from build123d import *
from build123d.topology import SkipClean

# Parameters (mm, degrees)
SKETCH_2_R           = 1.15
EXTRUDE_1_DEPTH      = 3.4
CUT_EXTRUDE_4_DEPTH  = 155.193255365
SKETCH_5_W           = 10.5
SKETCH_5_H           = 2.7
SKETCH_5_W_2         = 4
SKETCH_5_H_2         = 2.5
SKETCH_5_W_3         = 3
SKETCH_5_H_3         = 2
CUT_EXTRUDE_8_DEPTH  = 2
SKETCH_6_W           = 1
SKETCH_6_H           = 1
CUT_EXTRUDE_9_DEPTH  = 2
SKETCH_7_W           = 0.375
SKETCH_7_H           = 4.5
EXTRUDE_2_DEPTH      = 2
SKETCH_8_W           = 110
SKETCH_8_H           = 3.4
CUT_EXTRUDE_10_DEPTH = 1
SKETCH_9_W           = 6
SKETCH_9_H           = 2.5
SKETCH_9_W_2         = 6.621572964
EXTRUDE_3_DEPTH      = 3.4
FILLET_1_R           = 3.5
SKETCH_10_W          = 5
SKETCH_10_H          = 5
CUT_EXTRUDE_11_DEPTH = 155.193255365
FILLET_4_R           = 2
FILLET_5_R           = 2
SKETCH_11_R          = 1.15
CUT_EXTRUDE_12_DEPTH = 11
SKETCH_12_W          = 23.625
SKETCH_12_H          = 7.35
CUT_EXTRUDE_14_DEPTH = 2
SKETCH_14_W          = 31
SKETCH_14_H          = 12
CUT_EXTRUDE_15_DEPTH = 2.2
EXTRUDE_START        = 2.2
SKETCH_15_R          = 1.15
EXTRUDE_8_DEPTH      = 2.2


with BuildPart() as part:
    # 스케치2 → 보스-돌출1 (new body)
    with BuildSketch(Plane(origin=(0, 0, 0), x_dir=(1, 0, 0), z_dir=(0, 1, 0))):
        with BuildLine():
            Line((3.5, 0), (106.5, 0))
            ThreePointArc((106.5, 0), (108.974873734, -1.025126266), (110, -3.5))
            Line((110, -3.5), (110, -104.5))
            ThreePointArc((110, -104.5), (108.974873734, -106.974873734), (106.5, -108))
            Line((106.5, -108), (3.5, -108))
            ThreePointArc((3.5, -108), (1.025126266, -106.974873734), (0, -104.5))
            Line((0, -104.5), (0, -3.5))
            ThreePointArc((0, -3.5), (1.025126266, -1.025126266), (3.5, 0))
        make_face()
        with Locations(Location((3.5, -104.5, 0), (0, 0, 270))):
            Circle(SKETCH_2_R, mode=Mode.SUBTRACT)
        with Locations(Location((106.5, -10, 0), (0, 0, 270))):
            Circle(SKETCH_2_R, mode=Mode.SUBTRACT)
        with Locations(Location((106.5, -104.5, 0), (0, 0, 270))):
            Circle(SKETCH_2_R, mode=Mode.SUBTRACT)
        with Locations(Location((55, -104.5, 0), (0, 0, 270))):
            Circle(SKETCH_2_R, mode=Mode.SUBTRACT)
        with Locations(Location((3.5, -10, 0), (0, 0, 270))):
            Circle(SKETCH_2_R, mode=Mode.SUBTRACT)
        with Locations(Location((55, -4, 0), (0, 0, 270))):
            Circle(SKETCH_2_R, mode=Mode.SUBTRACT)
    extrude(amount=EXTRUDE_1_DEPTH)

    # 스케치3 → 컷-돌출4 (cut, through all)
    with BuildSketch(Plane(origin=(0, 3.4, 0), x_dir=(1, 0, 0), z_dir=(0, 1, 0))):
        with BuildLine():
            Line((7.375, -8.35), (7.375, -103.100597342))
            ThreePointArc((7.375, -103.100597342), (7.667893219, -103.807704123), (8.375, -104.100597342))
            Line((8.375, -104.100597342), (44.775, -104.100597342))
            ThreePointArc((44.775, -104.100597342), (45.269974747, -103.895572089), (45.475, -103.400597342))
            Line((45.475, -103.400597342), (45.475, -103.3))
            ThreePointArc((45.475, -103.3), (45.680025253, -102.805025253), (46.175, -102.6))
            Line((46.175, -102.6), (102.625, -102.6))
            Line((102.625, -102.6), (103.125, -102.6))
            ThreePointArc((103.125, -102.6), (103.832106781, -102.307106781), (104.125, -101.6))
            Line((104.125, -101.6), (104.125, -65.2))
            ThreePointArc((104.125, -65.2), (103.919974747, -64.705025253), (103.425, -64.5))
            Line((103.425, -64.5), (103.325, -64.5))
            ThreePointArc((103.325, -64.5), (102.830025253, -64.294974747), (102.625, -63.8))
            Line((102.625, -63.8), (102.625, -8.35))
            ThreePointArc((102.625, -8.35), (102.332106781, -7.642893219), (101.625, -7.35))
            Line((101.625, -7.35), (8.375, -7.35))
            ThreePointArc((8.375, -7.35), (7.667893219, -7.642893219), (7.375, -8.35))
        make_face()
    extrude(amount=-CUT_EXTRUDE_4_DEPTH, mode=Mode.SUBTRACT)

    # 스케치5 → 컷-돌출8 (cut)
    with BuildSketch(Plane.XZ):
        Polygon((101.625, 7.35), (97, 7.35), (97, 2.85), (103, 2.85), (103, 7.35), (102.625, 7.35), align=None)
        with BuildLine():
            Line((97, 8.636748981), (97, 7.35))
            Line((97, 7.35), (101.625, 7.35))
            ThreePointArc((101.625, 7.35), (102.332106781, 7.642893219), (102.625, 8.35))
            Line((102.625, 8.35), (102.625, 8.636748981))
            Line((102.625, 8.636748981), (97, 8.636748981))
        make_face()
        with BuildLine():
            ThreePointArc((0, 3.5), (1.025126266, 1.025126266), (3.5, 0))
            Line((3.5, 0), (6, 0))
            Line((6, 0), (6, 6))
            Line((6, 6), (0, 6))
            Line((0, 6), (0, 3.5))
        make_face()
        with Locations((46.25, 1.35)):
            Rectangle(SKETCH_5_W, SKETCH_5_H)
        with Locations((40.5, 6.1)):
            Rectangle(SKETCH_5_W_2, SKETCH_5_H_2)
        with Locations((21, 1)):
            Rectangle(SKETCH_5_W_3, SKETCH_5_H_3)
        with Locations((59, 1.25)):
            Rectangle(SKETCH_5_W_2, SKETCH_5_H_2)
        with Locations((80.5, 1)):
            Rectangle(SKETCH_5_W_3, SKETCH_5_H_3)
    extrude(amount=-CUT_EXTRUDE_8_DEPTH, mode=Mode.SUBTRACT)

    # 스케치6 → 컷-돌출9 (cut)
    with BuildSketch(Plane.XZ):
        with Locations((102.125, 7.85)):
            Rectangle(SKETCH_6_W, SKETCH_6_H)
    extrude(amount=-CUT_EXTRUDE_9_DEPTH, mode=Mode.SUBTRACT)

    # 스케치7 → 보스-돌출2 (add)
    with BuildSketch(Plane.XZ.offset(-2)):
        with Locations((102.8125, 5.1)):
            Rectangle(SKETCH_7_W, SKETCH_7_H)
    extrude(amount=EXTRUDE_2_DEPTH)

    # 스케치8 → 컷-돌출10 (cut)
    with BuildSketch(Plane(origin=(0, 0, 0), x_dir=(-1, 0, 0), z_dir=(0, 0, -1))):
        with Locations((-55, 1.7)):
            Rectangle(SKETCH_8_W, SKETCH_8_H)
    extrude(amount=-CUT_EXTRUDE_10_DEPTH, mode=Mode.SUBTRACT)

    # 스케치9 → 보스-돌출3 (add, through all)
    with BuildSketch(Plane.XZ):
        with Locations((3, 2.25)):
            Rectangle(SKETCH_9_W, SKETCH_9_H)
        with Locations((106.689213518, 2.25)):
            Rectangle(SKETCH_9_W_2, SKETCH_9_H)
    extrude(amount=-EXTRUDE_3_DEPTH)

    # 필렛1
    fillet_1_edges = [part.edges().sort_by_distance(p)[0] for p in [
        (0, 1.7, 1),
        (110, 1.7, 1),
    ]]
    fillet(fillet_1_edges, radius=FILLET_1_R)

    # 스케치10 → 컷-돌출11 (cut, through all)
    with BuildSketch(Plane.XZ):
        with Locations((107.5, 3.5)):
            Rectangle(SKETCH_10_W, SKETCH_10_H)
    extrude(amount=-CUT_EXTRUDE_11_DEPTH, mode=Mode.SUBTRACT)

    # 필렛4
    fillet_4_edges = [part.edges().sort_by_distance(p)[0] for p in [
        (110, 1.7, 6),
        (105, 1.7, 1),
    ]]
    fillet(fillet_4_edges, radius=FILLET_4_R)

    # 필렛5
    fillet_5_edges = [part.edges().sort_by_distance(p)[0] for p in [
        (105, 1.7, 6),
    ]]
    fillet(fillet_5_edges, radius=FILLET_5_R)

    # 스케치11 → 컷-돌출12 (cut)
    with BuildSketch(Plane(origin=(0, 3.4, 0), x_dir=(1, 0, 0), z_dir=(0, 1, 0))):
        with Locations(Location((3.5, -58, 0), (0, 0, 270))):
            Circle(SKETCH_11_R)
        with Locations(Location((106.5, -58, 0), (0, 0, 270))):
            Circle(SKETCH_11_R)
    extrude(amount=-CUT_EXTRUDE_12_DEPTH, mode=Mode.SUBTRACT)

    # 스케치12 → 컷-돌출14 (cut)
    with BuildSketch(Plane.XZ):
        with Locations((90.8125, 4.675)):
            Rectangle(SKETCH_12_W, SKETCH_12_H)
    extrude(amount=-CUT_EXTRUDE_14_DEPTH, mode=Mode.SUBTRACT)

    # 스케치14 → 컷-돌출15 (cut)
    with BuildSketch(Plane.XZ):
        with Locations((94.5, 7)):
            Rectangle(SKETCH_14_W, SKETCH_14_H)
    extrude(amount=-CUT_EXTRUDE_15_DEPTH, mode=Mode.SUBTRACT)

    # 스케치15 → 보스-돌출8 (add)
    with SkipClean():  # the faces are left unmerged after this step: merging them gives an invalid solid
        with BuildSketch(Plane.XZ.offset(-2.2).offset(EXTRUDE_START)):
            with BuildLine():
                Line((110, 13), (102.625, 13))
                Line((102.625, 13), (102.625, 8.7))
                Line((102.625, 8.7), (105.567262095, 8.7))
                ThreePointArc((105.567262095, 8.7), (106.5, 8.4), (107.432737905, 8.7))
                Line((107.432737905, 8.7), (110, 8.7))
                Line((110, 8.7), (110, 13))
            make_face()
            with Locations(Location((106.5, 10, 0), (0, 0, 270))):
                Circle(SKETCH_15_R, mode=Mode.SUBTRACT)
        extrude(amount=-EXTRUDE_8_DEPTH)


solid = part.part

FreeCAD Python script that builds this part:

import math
import FreeCAD as App
import Part
import Sketcher

V = App.Vector
Q = App.Units.Quantity


def edges_at(feature, points):
    """Names of the edges that pass closest to the given points."""
    edges = feature.Shape.Edges
    near = lambda p: min(range(len(edges)), key=lambda i: edges[i].distToShape(Part.Vertex(*p))[0])
    return sorted({f"Edge{near(p) + 1}" for p in points})


def add_polygon(sketch, points):
    """Adds a closed chain of lines whose ends are joined by coincident constraints."""
    first, n = sketch.GeometryCount, len(points)
    for a, b in zip(points, points[1:] + points[:1]):
        sketch.addGeometry(Part.LineSegment(App.Vector(*a, 0), App.Vector(*b, 0)), False)
    for i in range(n):
        sketch.addConstraint(Sketcher.Constraint("Coincident", first + i, 2, first + (i + 1) % n, 1))

doc = App.newDocument("Part")
params = doc.addObject("Spreadsheet::Sheet", "Params")
for row, (alias, value) in enumerate([
    ("sketch1_diameter", "2.3 mm"),
    ("sketch1_radius", "3.5 mm"),
    ("sketch1_width", "103 mm"),
    ("sketch1_height", "101 mm"),
    ("pad1_length", "3.4 mm"),
    ("sketch2_radius", "1 mm"),
    ("sketch2_radius2", "0.7 mm"),
    ("sketch2_width", "36.4 mm"),
    ("sketch2_width2", "0.1 mm"),
    ("sketch2_width3", "56.95 mm"),
    ("sketch3_radius", "1 mm"),
    ("sketch3_radius2", "3.5 mm"),
    ("sketch3_width", "6 mm"),
    ("sketch3_width2", "4 mm"),
    ("sketch3_width3", "3 mm"),
    ("pocket2_length", "2 mm"),
    ("sketch4_width", "1 mm"),
    ("pocket3_length", "2 mm"),
    ("sketch5_height", "4.5 mm"),
    ("pad2_length", "2 mm"),
    ("sketch6_width", "110 mm"),
    ("sketch6_height", "3.4 mm"),
    ("pocket4_length", "1 mm"),
    ("sketch7_width", "6 mm"),
    ("sketch7_height", "2.5 mm"),
    ("pad3_length", "3.4 mm"),
    ("fillet_radius", "3.5 mm"),
    ("sketch8_width", "5 mm"),
    ("fillet2_radius", "2 mm"),
    ("fillet3_radius", "2 mm"),
    ("sketch9_diameter", "2.3 mm"),
    ("pocket6_length", "11 mm"),
    ("sketch10_height", "7.35 mm"),
    ("pocket7_length", "2 mm"),
    ("sketch11_width", "31 mm"),
    ("sketch11_height", "12 mm"),
    ("pocket8_length", "2.2 mm"),
    ("sketch12_diameter", "2.3 mm"),
    ("sketch12_radius", "1.6 mm"),
    ("sketch12_height", "4.3 mm"),
    ("pad4_length", "2.2 mm"),
], start=1):
    params.set(f"A{row}", alias)
    params.set(f"B{row}", "=" + value)
    params.setAlias(f"B{row}", alias)

body = doc.addObject("PartDesign::Body", "Body")

# Sketch on XZ plane
sketch1 = body.newObject("Sketcher::SketchObject", "Sketch")
sketch1.AttachmentSupport = (doc.getObject("XZ_Plane"), [""])
sketch1.MapMode = "FlatFace"
sketch1.addGeometry([
    Part.LineSegment(V(106.5, 0, 0), V(3.5, 0, 0)),  # 0
    Part.ArcOfCircle(Part.Circle(V(3.5, 3.5, 0), V(0, 0, 1), 3.5), math.radians(-180), math.radians(-90)),  # 1
    Part.LineSegment(V(0, 3.5, 0), V(0, 104.5, 0)),  # 2
    Part.ArcOfCircle(Part.Circle(V(3.5, 104.5, 0), V(0, 0, 1), 3.5), math.radians(90), math.radians(180)),  # 3
    Part.LineSegment(V(3.5, 108, 0), V(106.5, 108, 0)),  # 4
    Part.ArcOfCircle(Part.Circle(V(106.5, 104.5, 0), V(0, 0, 1), 3.5), math.radians(0), math.radians(90)),  # 5
    Part.LineSegment(V(110, 104.5, 0), V(110, 3.5, 0)),  # 6
    Part.ArcOfCircle(Part.Circle(V(106.5, 3.5, 0), V(0, 0, 1), 3.5), math.radians(-90), math.radians(0)),  # 7
    Part.Circle(V(106.5, 104.5, 0), V(0, 0, 1), 1.1),  # 8
    Part.Circle(V(55, 104.5, 0), V(0, 0, 1), 1.1),  # 9
    Part.Circle(V(3.5, 104.5, 0), V(0, 0, 1), 1.1),  # 10
    Part.Circle(V(106.5, 10, 0), V(0, 0, 1), 1.1),  # 11
    Part.Circle(V(55, 4, 0), V(0, 0, 1), 1.1),  # 12
    Part.Circle(V(3.5, 10, 0), V(0, 0, 1), 1.1),  # 13
], False)
sketch1.addConstraint([
    Sketcher.Constraint("Tangent", 0, 2, 1, 2),
    Sketcher.Constraint("Tangent", 1, 1, 2, 1),
    Sketcher.Constraint("Tangent", 2, 2, 3, 2),
    Sketcher.Constraint("Tangent", 3, 1, 4, 1),
    Sketcher.Constraint("Tangent", 4, 2, 5, 2),
    Sketcher.Constraint("Tangent", 5, 1, 6, 1),
    Sketcher.Constraint("Tangent", 6, 2, 7, 2),
    Sketcher.Constraint("Tangent", 7, 1, 0, 1),
    Sketcher.Constraint("Horizontal", 0),
    Sketcher.Constraint("Vertical", 2),
    Sketcher.Constraint("Horizontal", 4),
    Sketcher.Constraint("Vertical", 6),
    Sketcher.Constraint("Coincident", 8, 3, 5, 3),
    Sketcher.Constraint("Coincident", 10, 3, 3, 3),
    Sketcher.Constraint("Equal", 1, 3),
    Sketcher.Constraint("Equal", 3, 5),
    Sketcher.Constraint("Equal", 5, 7),
    Sketcher.Constraint("Equal", 8, 9),
    Sketcher.Constraint("Equal", 9, 10),
    Sketcher.Constraint("Equal", 10, 11),
    Sketcher.Constraint("Equal", 11, 12),
    Sketcher.Constraint("Equal", 12, 13),
    Sketcher.Constraint("PointOnObject", 0, 2, -1),
    Sketcher.Constraint("PointOnObject", 1, 1, -2),
    Sketcher.Constraint("Horizontal", 8, 3, 9, 3),
    Sketcher.Constraint("Horizontal", 11, 3, 13, 3),
    Sketcher.Constraint("Vertical", 8, 3, 11, 3),
    Sketcher.Constraint("Vertical", 9, 3, 12, 3),
    Sketcher.Constraint("Vertical", 10, 3, 13, 3),
    Sketcher.Constraint("Diameter", 8, Q("2.3 mm")),
    Sketcher.Constraint("Radius", 1, Q("3.5 mm")),
    Sketcher.Constraint("DistanceX", 0, 2, 0, 1, Q("103 mm")),
    Sketcher.Constraint("DistanceY", 2, 1, 2, 2, Q("101 mm")),
    Sketcher.Constraint("DistanceX", -1, 1, 9, 3, Q("55 mm")),
    Sketcher.Constraint("DistanceY", -1, 1, 11, 3, Q("10 mm")),
    Sketcher.Constraint("DistanceY", -1, 1, 12, 3, Q("4 mm")),
])
sketch1.setExpression("Constraints[29]", "Params.sketch1_diameter")
sketch1.setExpression("Constraints[30]", "Params.sketch1_radius")
sketch1.setExpression("Constraints[31]", "Params.sketch1_width")
sketch1.setExpression("Constraints[32]", "Params.sketch1_height")
pad1 = body.newObject("PartDesign::Pad", "Pad")
pad1.Profile = sketch1
pad1.setExpression("Length", "Params.pad1_length")
pad1.Reversed = True

# Sketch on XZ plane
sketch2 = body.newObject("Sketcher::SketchObject", "Sketch001")
sketch2.AttachmentSupport = (doc.getObject("XZ_Plane"), [""])
sketch2.MapMode = "FlatFace"
sketch2.AttachmentOffset = App.Placement(V(0, 0, -3.4), App.Rotation())
sketch2.addGeometry([
    Part.LineSegment(V(7.38, 8.35, 0), V(7.38, 103.1, 0)),  # 0
    Part.ArcOfCircle(Part.Circle(V(8.38, 103.1, 0), V(0, 0, 1), 1), math.radians(90), math.radians(180)),  # 1
    Part.LineSegment(V(8.38, 104.1, 0), V(44.77, 104.1, 0)),  # 2
    Part.ArcOfCircle(Part.Circle(V(44.78, 103.4, 0), V(0, 0, 1), 0.7), math.radians(0), math.radians(90)),  # 3
    Part.LineSegment(V(45.48, 103.4, 0), V(45.48, 103.3, 0)),  # 4
    Part.ArcOfCircle(Part.Circle(V(46.17, 103.3, 0), V(0, 0, 1), 0.7), math.radians(180), math.radians(270)),  # 5
    Part.LineSegment(V(46.17, 102.6, 0), V(103.12, 102.6, 0)),  # 6
    Part.ArcOfCircle(Part.Circle(V(103.12, 101.6, 0), V(0, 0, 1), 1), math.radians(0), math.radians(90)),  # 7
    Part.LineSegment(V(104.12, 101.6, 0), V(104.12, 65.2, 0)),  # 8
    Part.ArcOfCircle(Part.Circle(V(103.43, 65.2, 0), V(0, 0, 1), 0.7), math.radians(-90), math.radians(0)),  # 9
    Part.LineSegment(V(103.42, 64.5, 0), V(103.33, 64.5, 0)),  # 10
    Part.ArcOfCircle(Part.Circle(V(103.32, 63.8, 0), V(0, 0, 1), 0.7), math.radians(90), math.radians(180)),  # 11
    Part.LineSegment(V(102.62, 63.8, 0), V(102.62, 8.35, 0)),  # 12
    Part.ArcOfCircle(Part.Circle(V(101.62, 8.35, 0), V(0, 0, 1), 1), math.radians(-90), math.radians(0)),  # 13
    Part.LineSegment(V(101.62, 7.35, 0), V(8.38, 7.35, 0)),  # 14
    Part.ArcOfCircle(Part.Circle(V(8.38, 8.35, 0), V(0, 0, 1), 1), math.radians(-180), math.radians(-90)),  # 15
], False)
sketch2.addConstraint([
    Sketcher.Constraint("Tangent", 0, 2, 1, 2),
    Sketcher.Constraint("Tangent", 1, 1, 2, 1),
    Sketcher.Constraint("Tangent", 2, 2, 3, 2),
    Sketcher.Constraint("Tangent", 3, 1, 4, 1),
    Sketcher.Constraint("Tangent", 4, 2, 5, 1),
    Sketcher.Constraint("Tangent", 5, 2, 6, 1),
    Sketcher.Constraint("Tangent", 6, 2, 7, 2),
    Sketcher.Constraint("Tangent", 7, 1, 8, 1),
    Sketcher.Constraint("Tangent", 8, 2, 9, 2),
    Sketcher.Constraint("Tangent", 9, 1, 10, 1),
    Sketcher.Constraint("Tangent", 10, 2, 11, 1),
    Sketcher.Constraint("Tangent", 11, 2, 12, 1),
    Sketcher.Constraint("Tangent", 12, 2, 13, 2),
    Sketcher.Constraint("Tangent", 13, 1, 14, 1),
    Sketcher.Constraint("Tangent", 14, 2, 15, 2),
    Sketcher.Constraint("Tangent", 15, 1, 0, 1),
    Sketcher.Constraint("Vertical", 0),
    Sketcher.Constraint("Horizontal", 2),
    Sketcher.Constraint("Vertical", 4),
    Sketcher.Constraint("Horizontal", 6),
    Sketcher.Constraint("Vertical", 8),
    Sketcher.Constraint("Horizontal", 10),
    Sketcher.Constraint("Vertical", 12),
    Sketcher.Constraint("Horizontal", 14),
    Sketcher.Constraint("Equal", 3, 5),
    Sketcher.Constraint("Equal", 1, 7),
    Sketcher.Constraint("Equal", 5, 9),
    Sketcher.Constraint("Equal", 9, 11),
    Sketcher.Constraint("Equal", 7, 13),
    Sketcher.Constraint("Equal", 13, 15),
    Sketcher.Constraint("Equal", 2, 8),
    Sketcher.Constraint("Radius", 1, Q("1 mm")),
    Sketcher.Constraint("Radius", 3, Q("0.7 mm")),
    Sketcher.Constraint("DistanceX", 2, 1, 2, 2, Q("36.4 mm")),
    Sketcher.Constraint("DistanceX", 10, 2, 10, 1, Q("0.1 mm")),
    Sketcher.Constraint("DistanceX", 6, 1, 6, 2, Q("56.95 mm")),
    Sketcher.Constraint("DistanceY", 12, 2, 12, 1, Q("55.45 mm")),
    Sketcher.Constraint("DistanceY", -1, 1, 5, 3, Q("103.3 mm")),
    Sketcher.Constraint("DistanceX", -1, 1, 1, 3, Q("8.375 mm")),
    Sketcher.Constraint("DistanceY", 0, 1, 0, 2, Q("94.750597 mm")),
])
sketch2.setExpression("Constraints[31]", "Params.sketch2_radius")
sketch2.setExpression("Constraints[32]", "Params.sketch2_radius2")
sketch2.setExpression("Constraints[33]", "Params.sketch2_width")
sketch2.setExpression("Constraints[34]", "Params.sketch2_width2")
sketch2.setExpression("Constraints[35]", "Params.sketch2_width3")
pocket1 = body.newObject("PartDesign::Pocket", "Pocket")
pocket1.Profile = sketch2
pocket1.Type = "ThroughAll"
pocket1.Reversed = True

# Sketch on XZ plane
sketch3 = body.newObject("Sketcher::SketchObject", "Sketch002")
sketch3.AttachmentSupport = (doc.getObject("XZ_Plane"), [""])
sketch3.MapMode = "FlatFace"
sketch3.addGeometry(Part.LineSegment(V(97, 2.85, 0), V(103, 2.85, 0)), False)  # 0
sketch3.addGeometry(Part.LineSegment(V(103, 2.85, 0), V(103, 7.35, 0)), False)  # 1
sketch3.addGeometry(Part.LineSegment(V(103, 7.35, 0), V(101.62, 7.35, 0)), False)  # 2
sketch3.addGeometry(Part.ArcOfCircle(Part.Circle(V(101.62, 8.35, 0), V(0, 0, 1), 1), math.radians(-90), math.radians(0)), False)  # 3
sketch3.addGeometry(Part.LineSegment(V(102.62, 8.35, 0), V(102.62, 8.64, 0)), False)  # 4
sketch3.addGeometry(Part.LineSegment(V(102.62, 8.64, 0), V(97, 8.64, 0)), False)  # 5
sketch3.addGeometry(Part.LineSegment(V(97, 8.64, 0), V(97, 2.85, 0)), False)  # 6
sketch3.addGeometry(Part.ArcOfCircle(Part.Circle(V(3.5, 3.5, 0), V(0, 0, 1), 3.5), math.radians(-180), math.radians(-90)), False)  # 7
sketch3.addGeometry(Part.LineSegment(V(3.5, 0, 0), V(6, 0, 0)), False)  # 8
sketch3.addGeometry(Part.LineSegment(V(6, 0, 0), V(6, 6, 0)), False)  # 9
sketch3.addGeometry(Part.LineSegment(V(6, 6, 0), V(0, 6, 0)), False)  # 10
sketch3.addGeometry(Part.LineSegment(V(0, 6, 0), V(0, 3.5, 0)), False)  # 11
add_polygon(sketch3, [(41, 2.7), (41, 0), (51.5, 0), (51.5, 2.7)])  # lines 12-15
add_polygon(sketch3, [(38.5, 7.35), (38.5, 4.85), (42.5, 4.85), (42.5, 7.35)])  # lines 16-19
add_polygon(sketch3, [(19.5, 2), (19.5, 0), (22.5, 0), (22.5, 2)])  # lines 20-23
add_polygon(sketch3, [(57, 2.5), (57, 0), (61, 0), (61, 2.5)])  # lines 24-27
add_polygon(sketch3, [(79, 2), (79, 0), (82, 0), (82, 2)])  # lines 28-31
sketch3.addConstraint([
    Sketcher.Constraint("Coincident", 0, 2, 1, 1),
    Sketcher.Constraint("Coincident", 1, 2, 2, 1),
    Sketcher.Constraint("Tangent", 2, 2, 3, 1),
    Sketcher.Constraint("Tangent", 3, 2, 4, 1),
    Sketcher.Constraint("Coincident", 4, 2, 5, 1),
    Sketcher.Constraint("Coincident", 5, 2, 6, 1),
    Sketcher.Constraint("Coincident", 6, 2, 0, 1),
    Sketcher.Constraint("Tangent", 7, 2, 8, 1),
    Sketcher.Constraint("Coincident", 8, 2, 9, 1),
    Sketcher.Constraint("Coincident", 9, 2, 10, 1),
    Sketcher.Constraint("Coincident", 10, 2, 11, 1),
    Sketcher.Constraint("Tangent", 11, 2, 7, 1),
    Sketcher.Constraint("Horizontal", 0),
    Sketcher.Constraint("Vertical", 1),
    Sketcher.Constraint("Horizontal", 2),
    Sketcher.Constraint("Vertical", 4),
    Sketcher.Constraint("Horizontal", 5),
    Sketcher.Constraint("Vertical", 6),
    Sketcher.Constraint("Horizontal", 8),
    Sketcher.Constraint("Vertical", 9),
    Sketcher.Constraint("Horizontal", 10),
    Sketcher.Constraint("Vertical", 11),
    Sketcher.Constraint("Vertical", 12),
    Sketcher.Constraint("Horizontal", 13),
    Sketcher.Constraint("Vertical", 14),
    Sketcher.Constraint("Horizontal", 15),
    Sketcher.Constraint("Vertical", 16),
    Sketcher.Constraint("Horizontal", 17),
    Sketcher.Constraint("Vertical", 18),
    Sketcher.Constraint("Horizontal", 19),
    Sketcher.Constraint("Vertical", 20),
    Sketcher.Constraint("Horizontal", 21),
    Sketcher.Constraint("Vertical", 22),
    Sketcher.Constraint("Horizontal", 23),
    Sketcher.Constraint("Vertical", 24),
    Sketcher.Constraint("Horizontal", 25),
    Sketcher.Constraint("Vertical", 26),
    Sketcher.Constraint("Horizontal", 27),
    Sketcher.Constraint("Vertical", 28),
    Sketcher.Constraint("Horizontal", 29),
    Sketcher.Constraint("Vertical", 30),
    Sketcher.Constraint("Horizontal", 31),
    Sketcher.Constraint("PointOnObject", 7, 2, -1),
    Sketcher.Constraint("PointOnObject", 10, 2, -2),
    Sketcher.Constraint("PointOnObject", 12, 2, -1),
    Sketcher.Constraint("PointOnObject", 20, 2, -1),
    Sketcher.Constraint("PointOnObject", 24, 2, -1),
    Sketcher.Constraint("PointOnObject", 28, 2, -1),
    Sketcher.Constraint("Horizontal", 2, 2, 18, 2),
    Sketcher.Constraint("Horizontal", 23, 2, 30, 2),
    Sketcher.Constraint("Equal", 0, 10),
    Sketcher.Constraint("Equal", 19, 25),
    Sketcher.Constraint("Equal", 23, 29),
    Sketcher.Constraint("Equal", 10, 9),
    Sketcher.Constraint("Equal", 11, 16),
    Sketcher.Constraint("Equal", 18, 24),
    Sketcher.Constraint("Radius", 3, Q("1 mm")),
    Sketcher.Constraint("Radius", 7, Q("3.5 mm")),
    Sketcher.Constraint("DistanceX", 0, 1, 0, 2, Q("6 mm")),
    Sketcher.Constraint("DistanceX", 17, 1, 17, 2, Q("4 mm")),
    Sketcher.Constraint("DistanceX", 21, 1, 21, 2, Q("3 mm")),
    Sketcher.Constraint("DistanceY", 20, 2, 20, 1, Q("2 mm")),
    Sketcher.Constraint("DistanceX", 13, 1, 13, 2, Q("10.5 mm")),
    Sketcher.Constraint("DistanceY", 1, 1, 1, 2, Q("4.5 mm")),
    Sketcher.Constraint("DistanceY", 12, 2, 12, 1, Q("2.7 mm")),
    Sketcher.Constraint("DistanceX", -1, 1, 0, 2, Q("103 mm")),
    Sketcher.Constraint("DistanceX", -1, 1, 12, 2, Q("41 mm")),
    Sketcher.Constraint("DistanceX", -1, 1, 24, 2, Q("57 mm")),
    Sketcher.Constraint("DistanceX", -1, 1, 28, 2, Q("79 mm")),
    Sketcher.Constraint("DistanceX", 16, 2, 14, 2, Q("13 mm")),
    Sketcher.Constraint("DistanceX", 7, 2, 20, 2, Q("16 mm")),
    Sketcher.Constraint("DistanceX", 2, 2, 2, 1, Q("1.375 mm")),
    Sketcher.Constraint("DistanceY", -1, 1, 3, 3, Q("8.35 mm")),
    Sketcher.Constraint("DistanceY", 4, 1, 4, 2, Q("0.286749 mm")),
])
sketch3.setExpression("Constraints[76]", "Params.sketch3_radius")
sketch3.setExpression("Constraints[77]", "Params.sketch3_radius2")
sketch3.setExpression("Constraints[78]", "Params.sketch3_width")
sketch3.setExpression("Constraints[79]", "Params.sketch3_width2")
sketch3.setExpression("Constraints[80]", "Params.sketch3_width3")
pocket2 = body.newObject("PartDesign::Pocket", "Pocket001")
pocket2.Profile = sketch3
pocket2.setExpression("Length", "Params.pocket2_length")

# Sketch on XZ plane
sketch4 = body.newObject("Sketcher::SketchObject", "Sketch003")
sketch4.AttachmentSupport = (doc.getObject("XZ_Plane"), [""])
sketch4.MapMode = "FlatFace"
add_polygon(sketch4, [(101.6, 8.3), (101.6, 7.3), (102.6, 7.3), (102.6, 8.3)])  # lines 0-3
sketch4.addConstraint([
    Sketcher.Constraint("Vertical", 0),
    Sketcher.Constraint("Horizontal", 1),
    Sketcher.Constraint("Vertical", 2),
    Sketcher.Constraint("Horizontal", 3),
    Sketcher.Constraint("Equal", 3, 0),
    Sketcher.Constraint("DistanceX", 1, 1, 1, 2, Q("1 mm")),
    Sketcher.Constraint("DistanceY", -1, 1, 0, 2, Q("7.35 mm")),
    Sketcher.Constraint("DistanceX", -1, 1, 0, 2, Q("101.625 mm")),
])
sketch4.setExpression("Constraints[9]", "Params.sketch4_width")
pocket3 = body.newObject("PartDesign::Pocket", "Pocket002")
pocket3.Profile = sketch4
pocket3.setExpression("Length", "Params.pocket3_length")

# Sketch on XZ plane
sketch5 = body.newObject("Sketcher::SketchObject", "Sketch004")
sketch5.AttachmentSupport = (doc.getObject("XZ_Plane"), [""])
sketch5.MapMode = "FlatFace"
sketch5.AttachmentOffset = App.Placement(V(0, 0, -2), App.Rotation())
add_polygon(sketch5, [(102.62, 7.35), (102.62, 2.85), (103, 2.85), (103, 7.35)])  # lines 0-3
sketch5.addConstraint([
    Sketcher.Constraint("Vertical", 0),
    Sketcher.Constraint("Horizontal", 1),
    Sketcher.Constraint("Vertical", 2),
    Sketcher.Constraint("Horizontal", 3),
    Sketcher.Constraint("DistanceY", 0, 2, 0, 1, Q("4.5 mm")),
    Sketcher.Constraint("DistanceX", -1, 1, 1, 2, Q("103 mm")),
    Sketcher.Constraint("DistanceX", 1, 1, 1, 2, Q("0.375 mm")),
    Sketcher.Constraint("DistanceY", -1, 1, 0, 2, Q("2.85 mm")),
])
sketch5.setExpression("Constraints[8]", "Params.sketch5_height")
pad2 = body.newObject("PartDesign::Pad", "Pad001")
pad2.Profile = sketch5
pad2.setExpression("Length", "Params.pad2_length")

# Sketch on XY plane
sketch6 = body.newObject("Sketcher::SketchObject", "Sketch005")
sketch6.AttachmentSupport = (doc.getObject("XY_Plane"), [""])
sketch6.MapMode = "FlatFace"
add_polygon(sketch6, [(110, 3.4), (110, 0), (0, 0), (0, 3.4)])  # lines 0-3
sketch6.addConstraint([
    Sketcher.Constraint("Vertical", 0),
    Sketcher.Constraint("Horizontal", 1),
    Sketcher.Constraint("Vertical", 2),
    Sketcher.Constraint("Horizontal", 3),
    Sketcher.Constraint("Coincident", 1, 2, -1, 1),
    Sketcher.Constraint("DistanceX", 1, 2, 1, 1, Q("110 mm")),
    Sketcher.Constraint("DistanceY", 0, 2, 0, 1, Q("3.4 mm")),
])
sketch6.setExpression("Constraints[9]", "Params.sketch6_width")
sketch6.setExpression("Constraints[10]", "Params.sketch6_height")
pocket4 = body.newObject("PartDesign::Pocket", "Pocket003")
pocket4.Profile = sketch6
pocket4.setExpression("Length", "Params.pocket4_length")
pocket4.Reversed = True

# Sketch on XZ plane
sketch7 = body.newObject("Sketcher::SketchObject", "Sketch006")
sketch7.AttachmentSupport = (doc.getObject("XZ_Plane"), [""])
sketch7.MapMode = "FlatFace"
add_polygon(sketch7, [(0, 3.5), (0, 1), (6, 1), (6, 3.5)])  # lines 0-3
add_polygon(sketch7, [(103.4, 3.5), (103.4, 1), (110, 1), (110, 3.5)])  # lines 4-7
sketch7.addConstraint([
    Sketcher.Constraint("Vertical", 0),
    Sketcher.Constraint("Horizontal", 1),
    Sketcher.Constraint("Vertical", 2),
    Sketcher.Constraint("Horizontal", 3),
    Sketcher.Constraint("Vertical", 4),
    Sketcher.Constraint("Horizontal", 5),
    Sketcher.Constraint("Vertical", 6),
    Sketcher.Constraint("Horizontal", 7),
    Sketcher.Constraint("PointOnObject", 0, 2, -2),
    Sketcher.Constraint("Horizontal", 1, 2, 4, 2),
    Sketcher.Constraint("Horizontal", 3, 2, 6, 2),
    Sketcher.Constraint("DistanceX", 1, 1, 1, 2, Q("6 mm")),
    Sketcher.Constraint("DistanceY", 0, 2, 0, 1, Q("2.5 mm")),
    Sketcher.Constraint("DistanceY", -1, 1, 0, 2, Q("1 mm")),
    Sketcher.Constraint("DistanceX", -1, 1, 5, 2, Q("110 mm")),
    Sketcher.Constraint("DistanceX", 5, 1, 5, 2, Q("6.621573 mm")),
])
sketch7.setExpression("Constraints[19]", "Params.sketch7_width")
sketch7.setExpression("Constraints[20]", "Params.sketch7_height")
pad3 = body.newObject("PartDesign::Pad", "Pad002")
pad3.Profile = sketch7
pad3.setExpression("Length", "Params.pad3_length")
pad3.Reversed = True
doc.recompute()

fillet = body.newObject("PartDesign::Fillet", "Fillet")
fillet.Base = (pad3, edges_at(pad3, [(0, 1.7, 1), (110, 1.7, 1)]))
fillet.setExpression("Radius", "Params.fillet_radius")

# Sketch on XZ plane
sketch8 = body.newObject("Sketcher::SketchObject", "Sketch007")
sketch8.AttachmentSupport = (doc.getObject("XZ_Plane"), [""])
sketch8.MapMode = "FlatFace"
add_polygon(sketch8, [(105, 6), (105, 1), (110, 1), (110, 6)])  # lines 0-3
sketch8.addConstraint([
    Sketcher.Constraint("Vertical", 0),
    Sketcher.Constraint("Horizontal", 1),
    Sketcher.Constraint("Vertical", 2),
    Sketcher.Constraint("Horizontal", 3),
    Sketcher.Constraint("Equal", 3, 0),
    Sketcher.Constraint("DistanceX", 1, 1, 1, 2, Q("5 mm")),
    Sketcher.Constraint("DistanceX", -1, 1, 0, 2, Q("105 mm")),
    Sketcher.Constraint("DistanceY", -1, 1, 0, 2, Q("1 mm")),
])
sketch8.setExpression("Constraints[9]", "Params.sketch8_width")
pocket5 = body.newObject("PartDesign::Pocket", "Pocket004")
pocket5.Profile = sketch8
pocket5.Type = "ThroughAll"
doc.recompute()

fillet2 = body.newObject("PartDesign::Fillet", "Fillet001")
fillet2.Base = (pocket5, edges_at(pocket5, [(110, 1.7, 6), (105, 1.7, 1)]))
fillet2.setExpression("Radius", "Params.fillet2_radius")
doc.recompute()

fillet3 = body.newObject("PartDesign::Fillet", "Fillet002")
fillet3.Base = (fillet2, edges_at(fillet2, [(105, 1.7, 6)]))
fillet3.setExpression("Radius", "Params.fillet3_radius")

# Sketch on XZ plane
sketch9 = body.newObject("Sketcher::SketchObject", "Sketch008")
sketch9.AttachmentSupport = (doc.getObject("XZ_Plane"), [""])
sketch9.MapMode = "FlatFace"
sketch9.AttachmentOffset = App.Placement(V(0, 0, -3.4), App.Rotation())
sketch9.addGeometry([
    Part.Circle(V(3.5, 58, 0), V(0, 0, 1), 1.1),
    Part.Circle(V(106.5, 58, 0), V(0, 0, 1), 1.1),
], False)
sketch9.addConstraint([
    Sketcher.Constraint("Equal", 0, 1),
    Sketcher.Constraint("Horizontal", 0, 3, 1, 3),
    Sketcher.Constraint("Diameter", 0, Q("2.3 mm")),
    Sketcher.Constraint("DistanceY", -1, 1, 0, 3, Q("58 mm")),
    Sketcher.Constraint("DistanceX", 0, 3, 1, 3, Q("103 mm")),
    Sketcher.Constraint("DistanceX", -1, 1, 0, 3, Q("3.5 mm")),
])
sketch9.setExpression("Constraints[2]", "Params.sketch9_diameter")
pocket6 = body.newObject("PartDesign::Pocket", "Pocket005")
pocket6.Profile = sketch9
pocket6.setExpression("Length", "Params.pocket6_length")
pocket6.Reversed = True

# Sketch on XZ plane
sketch10 = body.newObject("Sketcher::SketchObject", "Sketch009")
sketch10.AttachmentSupport = (doc.getObject("XZ_Plane"), [""])
sketch10.MapMode = "FlatFace"
add_polygon(sketch10, [(79, 8), (79, 1), (103, 1), (103, 8)])  # lines 0-3
sketch10.addConstraint([
    Sketcher.Constraint("Vertical", 0),
    Sketcher.Constraint("Horizontal", 1),
    Sketcher.Constraint("Vertical", 2),
    Sketcher.Constraint("Horizontal", 3),
    Sketcher.Constraint("DistanceX", -1, 1, 0, 2, Q("79 mm")),
    Sketcher.Constraint("DistanceY", -1, 1, 0, 2, Q("1 mm")),
    Sketcher.Constraint("DistanceY", 0, 2, 0, 1, Q("7.35 mm")),
    Sketcher.Constraint("DistanceX", 1, 1, 1, 2, Q("23.625 mm")),
])
sketch10.setExpression("Constraints[10]", "Params.sketch10_height")
pocket7 = body.newObject("PartDesign::Pocket", "Pocket006")
pocket7.Profile = sketch10
pocket7.setExpression("Length", "Params.pocket7_length")

# Sketch on XZ plane
sketch11 = body.newObject("Sketcher::SketchObject", "Sketch010")
sketch11.AttachmentSupport = (doc.getObject("XZ_Plane"), [""])
sketch11.MapMode = "FlatFace"
add_polygon(sketch11, [(79, 13), (79, 1), (110, 1), (110, 13)])  # lines 0-3
sketch11.addConstraint([
    Sketcher.Constraint("Vertical", 0),
    Sketcher.Constraint("Horizontal", 1),
    Sketcher.Constraint("Vertical", 2),
    Sketcher.Constraint("Horizontal", 3),
    Sketcher.Constraint("DistanceX", 1, 1, 1, 2, Q("31 mm")),
    Sketcher.Constraint("DistanceY", 0, 2, 0, 1, Q("12 mm")),
    Sketcher.Constraint("DistanceX", -1, 1, 0, 2, Q("79 mm")),
    Sketcher.Constraint("DistanceY", -1, 1, 0, 2, Q("1 mm")),
])
sketch11.setExpression("Constraints[8]", "Params.sketch11_width")
sketch11.setExpression("Constraints[9]", "Params.sketch11_height")
pocket8 = body.newObject("PartDesign::Pocket", "Pocket007")
pocket8.Profile = sketch11
pocket8.setExpression("Length", "Params.pocket8_length")

# Sketch on XZ plane
sketch12 = body.newObject("Sketcher::SketchObject", "Sketch011")
sketch12.AttachmentSupport = (doc.getObject("XZ_Plane"), [""])
sketch12.MapMode = "FlatFace"
sketch12.addGeometry([
    Part.LineSegment(V(110, 13, 0), V(102.6, 13, 0)),  # 0
    Part.LineSegment(V(102.6, 13, 0), V(102.6, 8.7, 0)),  # 1
    Part.LineSegment(V(102.6, 8.7, 0), V(105.6, 8.7, 0)),  # 2
    Part.ArcOfCircle(Part.Circle(V(106.5, 10, 0), V(0, 0, 1), 1.6), math.radians(-126), math.radians(-54)),  # 3
    Part.LineSegment(V(107.4, 8.7, 0), V(110, 8.7, 0)),  # 4
    Part.LineSegment(V(110, 8.7, 0), V(110, 13, 0)),  # 5
    Part.Circle(V(106.5, 10, 0), V(0, 0, 1), 1.1),  # 6
], False)
sketch12.addConstraint([
    Sketcher.Constraint("Coincident", 0, 2, 1, 1),
    Sketcher.Constraint("Coincident", 1, 2, 2, 1),
    Sketcher.Constraint("Coincident", 2, 2, 3, 1),
    Sketcher.Constraint("Coincident", 3, 2, 4, 1),
    Sketcher.Constraint("Coincident", 4, 2, 5, 1),
    Sketcher.Constraint("Coincident", 5, 2, 0, 1),
    Sketcher.Constraint("Horizontal", 0),
    Sketcher.Constraint("Vertical", 1),
    Sketcher.Constraint("Horizontal", 2),
    Sketcher.Constraint("Horizontal", 4),
    Sketcher.Constraint("Vertical", 5),
    Sketcher.Constraint("Coincident", 6, 3, 3, 3),
    Sketcher.Constraint("Horizontal", 2, 2, 3, 2),
    Sketcher.Constraint("Diameter", 6, Q("2.3 mm")),
    Sketcher.Constraint("Radius", 3, Q("1.6 mm")),
    Sketcher.Constraint("DistanceY", 1, 2, 1, 1, Q("4.3 mm")),
    Sketcher.Constraint("DistanceY", -1, 1, 3, 3, Q("10 mm")),
    Sketcher.Constraint("DistanceY", -1, 1, 0, 2, Q("13 mm")),
    Sketcher.Constraint("DistanceX", -1, 1, 4, 2, Q("110 mm")),
    Sketcher.Constraint("DistanceX", -1, 1, 3, 3, Q("106.5 mm")),
    Sketcher.Constraint("DistanceX", 0, 2, 0, 1, Q("7.375 mm")),
])
sketch12.setExpression("Constraints[13]", "Params.sketch12_diameter")
sketch12.setExpression("Constraints[14]", "Params.sketch12_radius")
sketch12.setExpression("Constraints[15]", "Params.sketch12_height")
pad4 = body.newObject("PartDesign::Pad", "Pad003")
pad4.Profile = sketch12
pad4.setExpression("Length", "Params.pad4_length")
pad4.Reversed = True

doc.recompute()
